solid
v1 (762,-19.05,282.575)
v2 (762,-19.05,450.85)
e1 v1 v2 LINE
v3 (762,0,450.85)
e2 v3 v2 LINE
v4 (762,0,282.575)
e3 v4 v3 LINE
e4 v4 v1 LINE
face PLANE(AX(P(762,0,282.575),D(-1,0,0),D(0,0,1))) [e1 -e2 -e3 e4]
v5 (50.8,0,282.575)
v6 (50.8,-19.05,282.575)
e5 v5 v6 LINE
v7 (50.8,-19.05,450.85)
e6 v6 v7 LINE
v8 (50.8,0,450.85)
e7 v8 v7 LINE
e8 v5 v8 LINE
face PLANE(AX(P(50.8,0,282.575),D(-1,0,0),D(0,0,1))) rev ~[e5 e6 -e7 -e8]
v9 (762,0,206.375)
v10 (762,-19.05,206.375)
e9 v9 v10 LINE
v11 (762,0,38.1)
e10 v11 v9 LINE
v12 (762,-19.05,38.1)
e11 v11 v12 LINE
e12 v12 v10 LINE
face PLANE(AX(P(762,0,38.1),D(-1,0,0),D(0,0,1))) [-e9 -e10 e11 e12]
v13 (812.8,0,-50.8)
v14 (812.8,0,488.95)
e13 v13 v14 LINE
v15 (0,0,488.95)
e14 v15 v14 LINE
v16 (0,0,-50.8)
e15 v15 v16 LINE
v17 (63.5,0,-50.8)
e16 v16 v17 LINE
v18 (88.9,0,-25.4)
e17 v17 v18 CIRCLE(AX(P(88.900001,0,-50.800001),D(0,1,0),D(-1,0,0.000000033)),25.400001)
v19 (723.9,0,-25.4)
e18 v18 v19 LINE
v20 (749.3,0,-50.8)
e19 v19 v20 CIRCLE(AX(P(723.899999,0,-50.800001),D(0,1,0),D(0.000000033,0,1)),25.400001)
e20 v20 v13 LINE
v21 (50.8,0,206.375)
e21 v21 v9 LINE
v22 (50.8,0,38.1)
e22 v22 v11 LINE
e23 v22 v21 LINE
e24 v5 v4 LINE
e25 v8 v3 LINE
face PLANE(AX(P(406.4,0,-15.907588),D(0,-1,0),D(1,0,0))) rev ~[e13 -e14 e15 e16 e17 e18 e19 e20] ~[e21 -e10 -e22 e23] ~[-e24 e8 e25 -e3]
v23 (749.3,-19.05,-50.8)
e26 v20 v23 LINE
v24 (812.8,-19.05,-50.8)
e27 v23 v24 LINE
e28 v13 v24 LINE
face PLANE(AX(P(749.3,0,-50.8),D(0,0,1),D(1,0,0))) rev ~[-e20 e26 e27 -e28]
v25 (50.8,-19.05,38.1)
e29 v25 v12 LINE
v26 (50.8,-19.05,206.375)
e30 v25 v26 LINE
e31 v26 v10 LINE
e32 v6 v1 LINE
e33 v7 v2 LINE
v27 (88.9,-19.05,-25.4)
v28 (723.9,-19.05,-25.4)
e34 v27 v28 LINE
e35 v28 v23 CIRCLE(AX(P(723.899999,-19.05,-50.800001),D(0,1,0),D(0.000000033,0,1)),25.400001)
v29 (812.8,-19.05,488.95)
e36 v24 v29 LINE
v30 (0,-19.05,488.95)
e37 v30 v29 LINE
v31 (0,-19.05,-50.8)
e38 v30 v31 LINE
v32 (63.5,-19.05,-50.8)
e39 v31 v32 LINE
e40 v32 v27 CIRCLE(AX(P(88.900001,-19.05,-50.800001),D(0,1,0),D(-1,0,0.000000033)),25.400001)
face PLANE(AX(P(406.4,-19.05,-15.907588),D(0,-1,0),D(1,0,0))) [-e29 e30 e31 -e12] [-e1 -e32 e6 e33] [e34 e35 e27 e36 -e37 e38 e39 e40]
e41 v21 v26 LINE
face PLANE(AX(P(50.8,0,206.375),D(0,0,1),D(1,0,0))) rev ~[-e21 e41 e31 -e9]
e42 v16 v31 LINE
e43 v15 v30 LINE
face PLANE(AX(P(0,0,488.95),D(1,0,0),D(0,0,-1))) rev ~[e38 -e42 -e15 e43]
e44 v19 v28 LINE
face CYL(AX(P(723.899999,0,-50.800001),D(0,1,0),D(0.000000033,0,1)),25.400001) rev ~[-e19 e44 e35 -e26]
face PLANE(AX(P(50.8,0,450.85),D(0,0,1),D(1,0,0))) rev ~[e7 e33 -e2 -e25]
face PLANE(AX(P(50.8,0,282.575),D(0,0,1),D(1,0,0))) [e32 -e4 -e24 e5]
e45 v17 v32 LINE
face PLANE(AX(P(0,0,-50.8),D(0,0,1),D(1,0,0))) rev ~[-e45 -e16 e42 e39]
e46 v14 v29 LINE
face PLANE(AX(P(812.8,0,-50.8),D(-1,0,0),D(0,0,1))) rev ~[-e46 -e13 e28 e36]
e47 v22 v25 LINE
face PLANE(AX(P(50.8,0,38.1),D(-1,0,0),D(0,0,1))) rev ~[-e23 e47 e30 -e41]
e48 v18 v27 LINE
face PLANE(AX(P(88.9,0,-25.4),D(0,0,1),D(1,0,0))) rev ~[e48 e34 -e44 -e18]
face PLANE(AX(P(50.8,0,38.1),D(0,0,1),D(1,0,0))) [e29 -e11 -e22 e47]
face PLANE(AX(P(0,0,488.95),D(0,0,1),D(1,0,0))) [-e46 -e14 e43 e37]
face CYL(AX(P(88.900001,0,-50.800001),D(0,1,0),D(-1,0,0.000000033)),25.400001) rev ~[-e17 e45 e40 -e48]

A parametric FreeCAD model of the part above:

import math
import FreeCAD as App
import Part
import Sketcher

V = App.Vector
Q = App.Units.Quantity

doc = App.newDocument("Part")
body = doc.addObject("PartDesign::Body", "Body")

# Sketch on XZ plane
sketch1 = body.newObject("Sketcher::SketchObject", "Sketch")
sketch1.AttachmentSupport = (doc.getObject("XZ_Plane"), [""])
sketch1.MapMode = "FlatFace"
sketch1.addGeometry(Part.LineSegment(V(0, -51, 0), V(64, -51, 0)), False)
sketch1.addGeometry(Part.ArcOfCircle(Part.Circle(V(89, -51, 0), V(0, 0, 1), 25), math.radians(90), math.radians(180)), False)
sketch1.addGeometry(Part.LineSegment(V(89, -25, 0), V(724, -25, 0)), False)
sketch1.addGeometry(Part.ArcOfCircle(Part.Circle(V(724, -51, 0), V(0, 0, 1), 25), math.radians(0), math.radians(90)), False)
sketch1.addGeometry(Part.LineSegment(V(749, -51, 0), V(813, -51, 0)), False)
sketch1.addGeometry(Part.LineSegment(V(813, -51, 0), V(813, 489, 0)), False)
sketch1.addGeometry(Part.LineSegment(V(813, 489, 0), V(0, 489, 0)), False)
sketch1.addGeometry(Part.LineSegment(V(0, 489, 0), V(0, -51, 0)), False)
sketch1.addGeometry(Part.LineSegment(V(762, 38, 0), V(51, 38, 0)), False)
sketch1.addGeometry(Part.LineSegment(V(51, 38, 0), V(51, 206, 0)), False)
sketch1.addGeometry(Part.LineSegment(V(51, 206, 0), V(762, 206, 0)), False)
sketch1.addGeometry(Part.LineSegment(V(762, 206, 0), V(762, 38, 0)), False)
sketch1.addGeometry(Part.LineSegment(V(762, 283, 0), V(51, 283, 0)), False)
sketch1.addGeometry(Part.LineSegment(V(51, 283, 0), V(51, 451, 0)), False)
sketch1.addGeometry(Part.LineSegment(V(51, 451, 0), V(762, 451, 0)), False)
sketch1.addGeometry(Part.LineSegment(V(762, 451, 0), V(762, 283, 0)), False)
sketch1.addConstraint(Sketcher.Constraint("Coincident", 0, 2, 1, 2))
sketch1.addConstraint(Sketcher.Constraint("Tangent", 1, 1, 2, 1))
sketch1.addConstraint(Sketcher.Constraint("Tangent", 2, 2, 3, 2))
sketch1.addConstraint(Sketcher.Constraint("Coincident", 3, 1, 4, 1))
sketch1.addConstraint(Sketcher.Constraint("Coincident", 4, 2, 5, 1))
sketch1.addConstraint(Sketcher.Constraint("Coincident", 5, 2, 6, 1))
sketch1.addConstraint(Sketcher.Constraint("Coincident", 6, 2, 7, 1))
sketch1.addConstraint(Sketcher.Constraint("Coincident", 7, 2, 0, 1))
sketch1.addConstraint(Sketcher.Constraint("Coincident", 8, 2, 9, 1))
sketch1.addConstraint(Sketcher.Constraint("Coincident", 9, 2, 10, 1))
sketch1.addConstraint(Sketcher.Constraint("Coincident", 10, 2, 11, 1))
sketch1.addConstraint(Sketcher.Constraint("Coincident", 11, 2, 8, 1))
sketch1.addConstraint(Sketcher.Constraint("Coincident", 12, 2, 13, 1))
sketch1.addConstraint(Sketcher.Constraint("Coincident", 13, 2, 14, 1))
sketch1.addConstraint(Sketcher.Constraint("Coincident", 14, 2, 15, 1))
sketch1.addConstraint(Sketcher.Constraint("Coincident", 15, 2, 12, 1))
sketch1.addConstraint(Sketcher.Constraint("Horizontal", 0))
sketch1.addConstraint(Sketcher.Constraint("Horizontal", 2))
sketch1.addConstraint(Sketcher.Constraint("Horizontal", 4))
sketch1.addConstraint(Sketcher.Constraint("Vertical", 5))
sketch1.addConstraint(Sketcher.Constraint("Horizontal", 6))
sketch1.addConstraint(Sketcher.Constraint("Vertical", 7))
sketch1.addConstraint(Sketcher.Constraint("Horizontal", 8))
sketch1.addConstraint(Sketcher.Constraint("Vertical", 9))
sketch1.addConstraint(Sketcher.Constraint("Horizontal", 10))
sketch1.addConstraint(Sketcher.Constraint("Vertical", 11))
sketch1.addConstraint(Sketcher.Constraint("Horizontal", 12))
sketch1.addConstraint(Sketcher.Constraint("Vertical", 13))
sketch1.addConstraint(Sketcher.Constraint("Horizontal", 14))
sketch1.addConstraint(Sketcher.Constraint("Vertical", 15))
sketch1.addConstraint(Sketcher.Constraint("Equal", 1, 3))
sketch1.addConstraint(Sketcher.Constraint("PointOnObject", 6, 2, -2))
sketch1.addConstraint(Sketcher.Constraint("Horizontal", 3, 3, 0, 2))
sketch1.addConstraint(Sketcher.Constraint("Horizontal", 0, 2, 3, 1))
sketch1.addConstraint(Sketcher.Constraint("Vertical", 9, 2, 12, 2))
sketch1.addConstraint(Sketcher.Constraint("Vertical", 11, 2, 14, 2))
sketch1.addConstraint(Sketcher.Constraint("Equal", 0, 4))
sketch1.addConstraint(Sketcher.Constraint("Equal", 11, 13))
sketch1.addConstraint(Sketcher.Constraint("Radius", 1, Q("1 in")))
sketch1.addConstraint(Sketcher.Constraint("DistanceX", 2, 1, 2, 2, Q("25 in")))
sketch1.addConstraint(Sketcher.Constraint("DistanceX", 6, 2, 6, 1, Q("32 in")))
sketch1.addConstraint(Sketcher.Constraint("DistanceX", 8, 2, 8, 1, Q("28 in")))
sketch1.addConstraint(Sketcher.Constraint("DistanceY", 1, 3, -1, 1, Q("2 in")))
sketch1.addConstraint(Sketcher.Constraint("DistanceX", -1, 1, 8, 2, Q("2 in")))
sketch1.addConstraint(Sketcher.Constraint("DistanceY", 9, 2, 12, 2, Q("3 in")))
sketch1.addConstraint(Sketcher.Constraint("DistanceY", 5, 1, 5, 2, Q("21.25 in")))
sketch1.addConstraint(Sketcher.Constraint("DistanceY", -1, 1, 8, 2, Q("1.5 in")))
sketch1.addConstraint(Sketcher.Constraint("DistanceY", 13, 2, 6, 2, Q("1.5 in")))
pad1 = body.newObject("PartDesign::Pad", "Pad")
pad1.Profile = sketch1
pad1.Length = Q("0.75 in")

doc.recompute()
